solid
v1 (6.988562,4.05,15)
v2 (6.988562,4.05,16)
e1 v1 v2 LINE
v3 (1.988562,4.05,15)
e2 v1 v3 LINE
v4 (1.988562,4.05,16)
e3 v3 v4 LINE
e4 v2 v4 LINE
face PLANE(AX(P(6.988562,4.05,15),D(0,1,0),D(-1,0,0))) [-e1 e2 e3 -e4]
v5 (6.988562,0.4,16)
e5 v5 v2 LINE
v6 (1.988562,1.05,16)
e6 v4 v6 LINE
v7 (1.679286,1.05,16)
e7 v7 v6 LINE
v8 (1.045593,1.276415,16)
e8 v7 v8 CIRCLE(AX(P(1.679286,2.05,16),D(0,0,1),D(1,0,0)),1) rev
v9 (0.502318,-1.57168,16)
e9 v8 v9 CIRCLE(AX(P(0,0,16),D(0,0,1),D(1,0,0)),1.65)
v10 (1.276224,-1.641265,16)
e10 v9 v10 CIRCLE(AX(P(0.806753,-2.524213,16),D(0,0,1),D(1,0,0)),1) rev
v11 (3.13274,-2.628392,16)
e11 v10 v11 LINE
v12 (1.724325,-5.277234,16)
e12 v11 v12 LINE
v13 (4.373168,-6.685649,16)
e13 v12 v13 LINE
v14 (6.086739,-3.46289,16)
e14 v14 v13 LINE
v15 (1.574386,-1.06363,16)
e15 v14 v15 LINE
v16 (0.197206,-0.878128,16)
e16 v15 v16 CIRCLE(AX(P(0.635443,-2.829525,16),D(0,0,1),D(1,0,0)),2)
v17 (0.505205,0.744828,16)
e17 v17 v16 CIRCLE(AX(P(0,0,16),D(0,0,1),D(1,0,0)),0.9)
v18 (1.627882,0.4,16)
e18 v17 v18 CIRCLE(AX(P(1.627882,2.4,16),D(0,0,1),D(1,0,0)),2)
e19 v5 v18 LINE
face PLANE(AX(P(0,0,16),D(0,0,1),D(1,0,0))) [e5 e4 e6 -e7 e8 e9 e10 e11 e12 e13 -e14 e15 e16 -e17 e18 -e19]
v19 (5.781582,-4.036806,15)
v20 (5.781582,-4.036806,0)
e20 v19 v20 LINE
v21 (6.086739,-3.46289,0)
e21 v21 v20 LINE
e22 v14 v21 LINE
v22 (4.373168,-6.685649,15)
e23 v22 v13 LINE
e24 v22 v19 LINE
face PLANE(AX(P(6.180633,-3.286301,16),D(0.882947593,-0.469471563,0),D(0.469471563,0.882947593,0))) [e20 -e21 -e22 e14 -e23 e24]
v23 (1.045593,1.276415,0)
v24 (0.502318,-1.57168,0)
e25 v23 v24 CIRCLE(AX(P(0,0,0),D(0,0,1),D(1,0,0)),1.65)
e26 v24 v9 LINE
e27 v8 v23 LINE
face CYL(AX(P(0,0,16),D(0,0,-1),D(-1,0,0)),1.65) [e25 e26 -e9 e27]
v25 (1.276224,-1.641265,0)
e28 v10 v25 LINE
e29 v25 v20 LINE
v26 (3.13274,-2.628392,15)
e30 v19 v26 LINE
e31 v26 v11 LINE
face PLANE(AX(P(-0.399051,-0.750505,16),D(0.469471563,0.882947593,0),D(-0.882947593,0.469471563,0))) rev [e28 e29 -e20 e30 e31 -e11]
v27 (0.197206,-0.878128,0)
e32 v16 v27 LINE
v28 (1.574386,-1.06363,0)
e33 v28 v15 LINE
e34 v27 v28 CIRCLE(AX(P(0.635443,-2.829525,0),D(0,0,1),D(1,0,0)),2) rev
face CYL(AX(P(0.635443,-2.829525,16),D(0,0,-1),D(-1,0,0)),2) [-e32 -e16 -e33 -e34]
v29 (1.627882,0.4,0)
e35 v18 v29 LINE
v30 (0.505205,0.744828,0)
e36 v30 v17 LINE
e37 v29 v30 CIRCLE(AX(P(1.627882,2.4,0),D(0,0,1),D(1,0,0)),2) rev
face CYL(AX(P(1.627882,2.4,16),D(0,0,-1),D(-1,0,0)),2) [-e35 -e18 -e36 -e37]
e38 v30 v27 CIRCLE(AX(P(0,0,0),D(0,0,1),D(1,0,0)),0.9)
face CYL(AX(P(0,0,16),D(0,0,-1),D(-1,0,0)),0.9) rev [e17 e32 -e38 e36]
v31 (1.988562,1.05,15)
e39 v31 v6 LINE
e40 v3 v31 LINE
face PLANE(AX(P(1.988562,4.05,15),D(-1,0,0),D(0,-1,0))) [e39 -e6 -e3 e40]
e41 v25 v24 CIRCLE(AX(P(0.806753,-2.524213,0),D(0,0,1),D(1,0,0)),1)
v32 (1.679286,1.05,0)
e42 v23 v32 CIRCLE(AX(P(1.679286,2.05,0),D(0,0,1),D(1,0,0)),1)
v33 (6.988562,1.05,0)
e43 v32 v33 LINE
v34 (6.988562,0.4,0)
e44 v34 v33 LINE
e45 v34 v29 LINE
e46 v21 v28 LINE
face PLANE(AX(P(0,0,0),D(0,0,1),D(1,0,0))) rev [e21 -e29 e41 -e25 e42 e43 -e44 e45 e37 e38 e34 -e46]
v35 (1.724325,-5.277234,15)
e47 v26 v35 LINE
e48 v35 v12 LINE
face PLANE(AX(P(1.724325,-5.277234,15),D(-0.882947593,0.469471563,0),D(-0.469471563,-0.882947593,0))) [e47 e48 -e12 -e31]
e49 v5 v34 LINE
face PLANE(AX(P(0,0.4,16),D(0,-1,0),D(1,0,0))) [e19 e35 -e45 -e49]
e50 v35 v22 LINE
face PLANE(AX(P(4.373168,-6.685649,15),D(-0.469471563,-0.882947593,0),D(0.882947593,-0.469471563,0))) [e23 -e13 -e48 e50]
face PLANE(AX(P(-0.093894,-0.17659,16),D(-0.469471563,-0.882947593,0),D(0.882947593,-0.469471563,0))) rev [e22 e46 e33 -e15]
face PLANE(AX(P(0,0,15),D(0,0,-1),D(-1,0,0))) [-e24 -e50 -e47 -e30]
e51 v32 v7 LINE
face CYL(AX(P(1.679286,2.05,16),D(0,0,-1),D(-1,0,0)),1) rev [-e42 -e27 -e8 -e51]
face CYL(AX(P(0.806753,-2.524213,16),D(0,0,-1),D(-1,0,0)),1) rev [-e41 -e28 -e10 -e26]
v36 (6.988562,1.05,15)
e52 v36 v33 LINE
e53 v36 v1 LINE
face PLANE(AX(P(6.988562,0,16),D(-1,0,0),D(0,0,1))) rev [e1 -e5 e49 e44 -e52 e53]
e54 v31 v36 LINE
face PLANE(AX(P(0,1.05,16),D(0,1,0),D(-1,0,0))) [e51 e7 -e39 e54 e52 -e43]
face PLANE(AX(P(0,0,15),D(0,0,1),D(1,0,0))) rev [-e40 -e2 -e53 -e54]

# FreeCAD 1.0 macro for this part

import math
import FreeCAD as App
import Part
import Sketcher
Q = App.Units.Quantity


def edges_at(feature, points):
    """Names of the edges that pass closest to the given points."""
    edges = feature.Shape.Edges
    near = lambda p: min(range(len(edges)), key=lambda i: edges[i].distToShape(Part.Vertex(*p))[0])
    return sorted({f"Edge{near(p) + 1}" for p in points})

doc = App.newDocument("Part")
body = doc.addObject("PartDesign::Body", "Body")

sketch1 = doc.addObject("Sketcher::SketchObject", "Sketch")
body.addObject(sketch1)
sketch1.AttachmentSupport = (doc.XY_Plane, [""])
sketch1.MapMode = "FlatFace"
sketch1.addGeometry(Part.LineSegment(App.Vector(0.8, 0.4, 0), App.Vector(7, 0.4, 0)), False)
sketch1.addGeometry(Part.LineSegment(App.Vector(7, 0.4, 0), App.Vector(7, 1.1, 0)), False)
sketch1.addGeometry(Part.LineSegment(App.Vector(7, 1.1, 0), App.Vector(1.3, 1.1, 0)), False)
sketch1.addGeometry(Part.ArcOfCircle(Part.Circle(App.Vector(0, 0, 0), App.Vector(0, 0, 1), 1.6), math.radians(40), math.radians(301)), False)
sketch1.addGeometry(Part.LineSegment(App.Vector(0.8, -1.4, 0), App.Vector(5.8, -4, 0)), False)
sketch1.addGeometry(Part.LineSegment(App.Vector(5.8, -4, 0), App.Vector(6.1, -3.5, 0)), False)
sketch1.addGeometry(Part.LineSegment(App.Vector(6.1, -3.5, 0), App.Vector(0.7, -0.6, 0)), False)
sketch1.addGeometry(Part.ArcOfCircle(Part.Circle(App.Vector(0, 0, 0), App.Vector(0, 0, 1), 0.9), math.radians(26), math.radians(319)), False)
sketch1.addConstraint(Sketcher.Constraint("Coincident", 0, 2, 1, 1))
sketch1.addConstraint(Sketcher.Constraint("Coincident", 1, 2, 2, 1))
sketch1.addConstraint(Sketcher.Constraint("Coincident", 2, 2, 3, 1))
sketch1.addConstraint(Sketcher.Constraint("Coincident", 3, 2, 4, 1))
sketch1.addConstraint(Sketcher.Constraint("Coincident", 4, 2, 5, 1))
sketch1.addConstraint(Sketcher.Constraint("Coincident", 5, 2, 6, 1))
sketch1.addConstraint(Sketcher.Constraint("Coincident", 6, 2, 7, 2))
sketch1.addConstraint(Sketcher.Constraint("Coincident", 7, 1, 0, 1))
sketch1.addConstraint(Sketcher.Constraint("Horizontal", 0))
sketch1.addConstraint(Sketcher.Constraint("Vertical", 1))
sketch1.addConstraint(Sketcher.Constraint("Horizontal", 2))
sketch1.addConstraint(Sketcher.Constraint("Coincident", 3, 3, -1, 1))
sketch1.addConstraint(Sketcher.Constraint("Coincident", 7, 3, -1, 1))
sketch1.addConstraint(Sketcher.Constraint("Perpendicular", 4, 5))
sketch1.addConstraint(Sketcher.Constraint("Perpendicular", 5, 6))
sketch1.addConstraint(Sketcher.Constraint("Radius", 7, 0.9))
sketch1.addConstraint(Sketcher.Constraint("Angle", 4, Q("-28 deg")))
sketch1.addConstraint(Sketcher.Constraint("Radius", 3, 1.65))
sketch1.addConstraint(Sketcher.Constraint("DistanceY", 1, 1, 1, 2, 0.65))
sketch1.addConstraint(Sketcher.Constraint("DistanceY", -1, 1, 0, 2, 0.4))
sketch1.addConstraint(Sketcher.Constraint("Distance", 5, 0.65))
sketch1.addConstraint(Sketcher.Constraint("DistanceX", 2, 2, 2, 1, 5.71577))
sketch1.addConstraint(Sketcher.Constraint("DistanceX", 7, 1, 3, 2, 0.0434))
sketch1.addConstraint(Sketcher.Constraint("DistanceX", -1, 1, 5, 2, 6.086739))
pad1 = doc.addObject("PartDesign::Pad", "Pad")
body.addObject(pad1)
pad1.Profile = sketch1
pad1.Length = 16
doc.recompute()

fillet = doc.addObject("PartDesign::Fillet", "Fillet")
body.addObject(fillet)
fillet.Base = (pad1, edges_at(pad1, [(0.85, -1.414, 8), (1.273, 1.05, 8)]))
fillet.Radius = 1
doc.recompute()

fillet2 = doc.addObject("PartDesign::Fillet", "Fillet001")
body.addObject(fillet2)
fillet2.Base = (fillet, edges_at(fillet, [(0.681, -0.589, 8), (0.806, 0.4, 8)]))
fillet2.Radius = 2

sketch2 = doc.addObject("Sketcher::SketchObject", "Sketch001")
body.addObject(sketch2)
sketch2.AttachmentSupport = (doc.XY_Plane, [""])
sketch2.MapMode = "FlatFace"
sketch2.AttachmentOffset = App.Placement(App.Vector(0, 0, 16), App.Rotation())
sketch2.addGeometry(Part.LineSegment(App.Vector(2, 4, 0), App.Vector(2, 1.1, 0)), False)
sketch2.addGeometry(Part.LineSegment(App.Vector(2, 1.1, 0), App.Vector(7, 1.1, 0)), False)
sketch2.addGeometry(Part.LineSegment(App.Vector(7, 1.1, 0), App.Vector(7, 4, 0)), False)
sketch2.addGeometry(Part.LineSegment(App.Vector(7, 4, 0), App.Vector(2, 4, 0)), False)
sketch2.addGeometry(Part.LineSegment(App.Vector(4.4, -6.7, 0), App.Vector(5.8, -4, 0)), False)
sketch2.addGeometry(Part.LineSegment(App.Vector(5.8, -4, 0), App.Vector(3.1, -2.6, 0)), False)
sketch2.addGeometry(Part.LineSegment(App.Vector(3.1, -2.6, 0), App.Vector(1.7, -5.3, 0)), False)
sketch2.addGeometry(Part.LineSegment(App.Vector(1.7, -5.3, 0), App.Vector(4.4, -6.7, 0)), False)
sketch2.addConstraint(Sketcher.Constraint("Coincident", 0, 2, 1, 1))
sketch2.addConstraint(Sketcher.Constraint("Coincident", 1, 2, 2, 1))
sketch2.addConstraint(Sketcher.Constraint("Coincident", 2, 2, 3, 1))
sketch2.addConstraint(Sketcher.Constraint("Coincident", 3, 2, 0, 1))
sketch2.addConstraint(Sketcher.Constraint("Coincident", 4, 2, 5, 1))
sketch2.addConstraint(Sketcher.Constraint("Coincident", 5, 2, 6, 1))
sketch2.addConstraint(Sketcher.Constraint("Coincident", 6, 2, 7, 1))
sketch2.addConstraint(Sketcher.Constraint("Coincident", 7, 2, 4, 1))
sketch2.addConstraint(Sketcher.Constraint("Vertical", 0))
sketch2.addConstraint(Sketcher.Constraint("Horizontal", 1))
sketch2.addConstraint(Sketcher.Constraint("Vertical", 2))
sketch2.addConstraint(Sketcher.Constraint("Horizontal", 3))
sketch2.addConstraint(Sketcher.Constraint("Perpendicular", 4, 5))
sketch2.addConstraint(Sketcher.Constraint("Perpendicular", 5, 6))
sketch2.addConstraint(Sketcher.Constraint("Perpendicular", 6, 7))
sketch2.addConstraint(Sketcher.Constraint("Equal", 4, 5))
sketch2.addConstraint(Sketcher.Constraint("DistanceX", 1, 1, 1, 2, 5.0))
sketch2.addConstraint(Sketcher.Constraint("DistanceY", 0, 2, 0, 1, 3.0))
sketch2.addConstraint(Sketcher.Constraint("Angle", 4, Q("62 deg")))
sketch2.addConstraint(Sketcher.Constraint("Distance", 4, 3.0))
sketch2.addConstraint(Sketcher.Constraint("DistanceY", -1, 1, 0, 2, 1.05))
sketch2.addConstraint(Sketcher.Constraint("DistanceX", -1, 1, 5, 2, 3.13274))
sketch2.addConstraint(Sketcher.Constraint("DistanceY", 5, 2, -1, 1, 2.628392))
sketch2.addConstraint(Sketcher.Constraint("DistanceX", 4, 2, 1, 2, 1.20698))
pad2 = doc.addObject("PartDesign::Pad", "Pad001")
body.addObject(pad2)
pad2.Profile = sketch2
pad2.Length = 1
pad2.Reversed = True

doc.recompute()
